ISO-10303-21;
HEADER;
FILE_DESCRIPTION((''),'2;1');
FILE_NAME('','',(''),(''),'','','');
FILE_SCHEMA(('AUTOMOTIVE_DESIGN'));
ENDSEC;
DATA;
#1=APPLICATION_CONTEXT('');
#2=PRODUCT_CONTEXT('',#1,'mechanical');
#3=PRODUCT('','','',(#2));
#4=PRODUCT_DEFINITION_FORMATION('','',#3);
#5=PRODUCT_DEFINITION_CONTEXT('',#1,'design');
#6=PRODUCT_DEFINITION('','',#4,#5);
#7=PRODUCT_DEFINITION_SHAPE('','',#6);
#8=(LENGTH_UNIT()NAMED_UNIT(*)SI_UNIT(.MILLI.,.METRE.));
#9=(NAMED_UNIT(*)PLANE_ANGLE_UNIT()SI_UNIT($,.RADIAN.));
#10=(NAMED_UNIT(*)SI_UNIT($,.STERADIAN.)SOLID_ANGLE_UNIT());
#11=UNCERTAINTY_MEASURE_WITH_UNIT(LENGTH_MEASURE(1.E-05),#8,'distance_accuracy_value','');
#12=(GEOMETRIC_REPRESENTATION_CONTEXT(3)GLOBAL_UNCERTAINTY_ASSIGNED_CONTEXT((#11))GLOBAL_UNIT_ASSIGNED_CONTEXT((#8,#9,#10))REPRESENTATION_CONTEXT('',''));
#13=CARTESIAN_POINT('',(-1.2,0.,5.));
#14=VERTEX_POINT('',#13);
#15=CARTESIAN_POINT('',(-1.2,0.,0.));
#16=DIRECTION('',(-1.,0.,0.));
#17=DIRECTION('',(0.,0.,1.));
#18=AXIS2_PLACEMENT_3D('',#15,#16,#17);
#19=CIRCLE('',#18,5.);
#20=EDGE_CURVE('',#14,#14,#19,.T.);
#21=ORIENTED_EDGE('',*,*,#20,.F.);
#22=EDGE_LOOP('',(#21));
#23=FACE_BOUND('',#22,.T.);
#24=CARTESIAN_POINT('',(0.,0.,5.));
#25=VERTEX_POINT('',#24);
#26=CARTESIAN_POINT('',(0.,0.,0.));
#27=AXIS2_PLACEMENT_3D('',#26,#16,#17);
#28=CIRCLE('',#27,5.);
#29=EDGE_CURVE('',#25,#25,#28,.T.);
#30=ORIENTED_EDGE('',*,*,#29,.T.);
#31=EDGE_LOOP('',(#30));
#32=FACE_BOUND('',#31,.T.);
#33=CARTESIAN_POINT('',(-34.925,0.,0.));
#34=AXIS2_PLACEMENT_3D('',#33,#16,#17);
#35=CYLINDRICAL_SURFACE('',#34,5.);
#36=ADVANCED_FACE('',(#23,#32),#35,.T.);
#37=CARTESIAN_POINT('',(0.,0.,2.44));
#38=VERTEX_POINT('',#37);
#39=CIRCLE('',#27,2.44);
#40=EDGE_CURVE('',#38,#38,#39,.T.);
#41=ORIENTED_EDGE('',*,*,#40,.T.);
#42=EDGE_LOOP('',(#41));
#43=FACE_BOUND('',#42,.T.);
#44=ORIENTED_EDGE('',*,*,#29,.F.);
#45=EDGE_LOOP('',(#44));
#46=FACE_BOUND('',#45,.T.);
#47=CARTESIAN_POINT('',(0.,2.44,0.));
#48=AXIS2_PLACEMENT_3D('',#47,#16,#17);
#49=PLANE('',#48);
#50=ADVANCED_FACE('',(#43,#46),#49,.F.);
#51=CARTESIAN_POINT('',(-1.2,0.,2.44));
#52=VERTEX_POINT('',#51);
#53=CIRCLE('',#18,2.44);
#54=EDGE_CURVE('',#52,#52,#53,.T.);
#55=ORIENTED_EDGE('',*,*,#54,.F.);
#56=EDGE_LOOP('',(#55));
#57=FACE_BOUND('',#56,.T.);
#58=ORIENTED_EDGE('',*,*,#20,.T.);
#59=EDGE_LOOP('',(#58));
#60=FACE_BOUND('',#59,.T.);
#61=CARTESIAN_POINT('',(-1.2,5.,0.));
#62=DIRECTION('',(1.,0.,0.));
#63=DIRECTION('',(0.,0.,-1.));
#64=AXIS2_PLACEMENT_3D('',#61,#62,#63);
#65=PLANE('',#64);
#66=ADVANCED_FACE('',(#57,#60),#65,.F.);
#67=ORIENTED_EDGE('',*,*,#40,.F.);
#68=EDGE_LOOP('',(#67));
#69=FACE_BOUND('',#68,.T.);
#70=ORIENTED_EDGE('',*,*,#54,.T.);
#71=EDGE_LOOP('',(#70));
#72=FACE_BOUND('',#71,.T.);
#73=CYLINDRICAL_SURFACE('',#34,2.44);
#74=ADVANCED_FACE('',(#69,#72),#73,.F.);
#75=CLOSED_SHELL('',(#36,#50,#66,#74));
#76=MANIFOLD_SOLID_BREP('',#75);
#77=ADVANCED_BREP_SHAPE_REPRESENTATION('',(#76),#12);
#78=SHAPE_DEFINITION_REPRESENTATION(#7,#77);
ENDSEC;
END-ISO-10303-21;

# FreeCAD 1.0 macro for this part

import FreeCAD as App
import Part
import Sketcher
from FreeCAD import Vector
Q = App.Units.Quantity

doc = App.newDocument("Part")
body = doc.addObject("PartDesign::Body", "Body")

# Sketch on XY plane
sketch1 = body.newObject("Sketcher::SketchObject", "Sketch")
sketch1.AttachmentSupport = (doc.getObject("XY_Plane"), [""])
sketch1.MapMode = "FlatFace"
sketch1.addGeometry(Part.LineSegment(Vector(-1.2, 5, 0), Vector(-1.2, 2.44, 0)), False)
sketch1.addGeometry(Part.LineSegment(Vector(-1.2, 2.44, 0), Vector(0, 2.44, 0)), False)
sketch1.addGeometry(Part.LineSegment(Vector(0, 2.44, 0), Vector(0, 5, 0)), False)
sketch1.addGeometry(Part.LineSegment(Vector(0, 5, 0), Vector(-1.2, 5, 0)), False)
sketch1.addConstraint(Sketcher.Constraint("Coincident", 0, 2, 1, 1))
sketch1.addConstraint(Sketcher.Constraint("Coincident", 1, 2, 2, 1))
sketch1.addConstraint(Sketcher.Constraint("Coincident", 2, 2, 3, 1))
sketch1.addConstraint(Sketcher.Constraint("Coincident", 3, 2, 0, 1))
sketch1.addConstraint(Sketcher.Constraint("Vertical", 0))
sketch1.addConstraint(Sketcher.Constraint("Horizontal", 1))
sketch1.addConstraint(Sketcher.Constraint("Vertical", 2))
sketch1.addConstraint(Sketcher.Constraint("Horizontal", 3))
sketch1.addConstraint(Sketcher.Constraint("PointOnObject", 1, 2, -2))
sketch1.addConstraint(Sketcher.Constraint("DistanceX", 1, 1, 1, 2, Q("1.2 mm")))
sketch1.addConstraint(Sketcher.Constraint("DistanceY", -1, 1, 2, 2, Q("5 mm")))
sketch1.addConstraint(Sketcher.Constraint("DistanceY", 0, 2, 0, 1, Q("2.56 mm")))
revolution = body.newObject("PartDesign::Revolution", "Revolution")
revolution.Profile = sketch1
revolution.ReferenceAxis = (sketch1, ["H_Axis"])
revolution.Angle = 360

doc.recompute()
